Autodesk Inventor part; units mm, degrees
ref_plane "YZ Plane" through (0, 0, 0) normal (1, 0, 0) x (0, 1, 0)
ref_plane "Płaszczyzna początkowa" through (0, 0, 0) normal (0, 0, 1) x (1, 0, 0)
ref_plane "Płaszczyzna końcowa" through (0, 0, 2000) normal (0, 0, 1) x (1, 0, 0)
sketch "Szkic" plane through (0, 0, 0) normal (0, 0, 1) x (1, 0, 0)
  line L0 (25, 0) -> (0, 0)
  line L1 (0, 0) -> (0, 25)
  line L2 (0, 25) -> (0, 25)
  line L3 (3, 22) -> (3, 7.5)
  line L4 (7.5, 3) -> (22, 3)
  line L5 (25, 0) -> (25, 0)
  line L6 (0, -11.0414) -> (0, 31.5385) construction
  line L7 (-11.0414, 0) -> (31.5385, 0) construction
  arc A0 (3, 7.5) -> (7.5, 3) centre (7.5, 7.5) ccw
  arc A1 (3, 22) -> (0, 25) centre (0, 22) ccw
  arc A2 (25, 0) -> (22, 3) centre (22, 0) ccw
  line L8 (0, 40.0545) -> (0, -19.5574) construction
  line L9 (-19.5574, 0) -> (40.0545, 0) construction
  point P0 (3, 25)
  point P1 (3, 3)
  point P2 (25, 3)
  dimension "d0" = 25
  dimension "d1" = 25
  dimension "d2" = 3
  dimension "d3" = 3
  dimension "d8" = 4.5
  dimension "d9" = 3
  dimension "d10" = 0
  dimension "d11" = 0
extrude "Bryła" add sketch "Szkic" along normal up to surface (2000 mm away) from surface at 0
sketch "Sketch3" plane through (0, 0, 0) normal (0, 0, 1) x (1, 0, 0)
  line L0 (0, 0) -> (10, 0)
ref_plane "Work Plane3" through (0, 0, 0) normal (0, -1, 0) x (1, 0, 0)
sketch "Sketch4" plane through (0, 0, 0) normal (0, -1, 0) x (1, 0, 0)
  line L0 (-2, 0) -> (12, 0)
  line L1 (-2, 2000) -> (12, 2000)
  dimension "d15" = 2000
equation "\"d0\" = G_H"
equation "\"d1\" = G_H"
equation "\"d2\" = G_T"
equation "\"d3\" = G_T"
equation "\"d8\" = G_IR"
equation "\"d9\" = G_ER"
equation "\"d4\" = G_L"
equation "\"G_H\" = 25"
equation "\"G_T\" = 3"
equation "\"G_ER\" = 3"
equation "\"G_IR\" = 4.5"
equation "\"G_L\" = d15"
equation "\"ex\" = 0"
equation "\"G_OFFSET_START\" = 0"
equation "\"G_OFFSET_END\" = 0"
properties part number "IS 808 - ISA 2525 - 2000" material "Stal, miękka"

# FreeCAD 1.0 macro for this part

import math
import FreeCAD as App
import Part
import Sketcher

V = App.Vector

doc = App.newDocument("Part")
params = doc.addObject("Spreadsheet::Sheet", "Params")
for row, (alias, value) in enumerate([
    ("sketch1_radius", "3 mm"),
    ("sketch1_radius2", "4.5 mm"),
    ("sketch1_width", "25 mm"),
    ("pad1_length", "2000 mm"),
], start=1):
    params.set(f"A{row}", alias)
    params.set(f"B{row}", "=" + value)
    params.setAlias(f"B{row}", alias)

body = doc.addObject("PartDesign::Body", "Body")

sketch1 = body.newObject("Sketcher::SketchObject", "Sketch")
sketch1.AttachmentSupport = (doc.getObject("XY_Plane"), [""])
sketch1.MapMode = "FlatFace"
sketch1.addGeometry(Part.LineSegment(V(0, 0, 0), V(25, 0, 0)), False)
sketch1.addGeometry(Part.ArcOfCircle(Part.Circle(V(22, 0, 0), V(0, 0, 1), 3), math.radians(0), math.radians(90)), False)
sketch1.addGeometry(Part.LineSegment(V(22, 3, 0), V(7.5, 3, 0)), False)
sketch1.addGeometry(Part.ArcOfCircle(Part.Circle(V(7.5, 7.5, 0), V(0, 0, 1), 4.5), math.radians(180), math.radians(270)), False)
sketch1.addGeometry(Part.LineSegment(V(3, 7.5, 0), V(3, 22, 0)), False)
sketch1.addGeometry(Part.ArcOfCircle(Part.Circle(V(0, 22, 0), V(0, 0, 1), 3), math.radians(0), math.radians(90)), False)
sketch1.addGeometry(Part.LineSegment(V(0, 25, 0), V(0, 0, 0)), False)
sketch1.addConstraint(Sketcher.Constraint("Coincident", 0, 2, 1, 1))
sketch1.addConstraint(Sketcher.Constraint("Tangent", 1, 2, 2, 1))
sketch1.addConstraint(Sketcher.Constraint("Tangent", 2, 2, 3, 2))
sketch1.addConstraint(Sketcher.Constraint("Tangent", 3, 1, 4, 1))
sketch1.addConstraint(Sketcher.Constraint("Tangent", 4, 2, 5, 1))
sketch1.addConstraint(Sketcher.Constraint("Coincident", 5, 2, 6, 1))
sketch1.addConstraint(Sketcher.Constraint("Coincident", 6, 2, 0, 1))
sketch1.addConstraint(Sketcher.Constraint("Horizontal", 0))
sketch1.addConstraint(Sketcher.Constraint("Horizontal", 2))
sketch1.addConstraint(Sketcher.Constraint("Vertical", 4))
sketch1.addConstraint(Sketcher.Constraint("Vertical", 6))
sketch1.addConstraint(Sketcher.Constraint("Coincident", 6, 2, -1, 1))
sketch1.addConstraint(Sketcher.Constraint("Equal", 1, 5))
sketch1.addConstraint(Sketcher.Constraint("PointOnObject", 1, 3, -1))
sketch1.addConstraint(Sketcher.Constraint("PointOnObject", 5, 3, -2))
sketch1.addConstraint(Sketcher.Constraint("Equal", 2, 4))
sketch1.addConstraint(Sketcher.Constraint("Radius", 1, 3.0))
sketch1.addConstraint(Sketcher.Constraint("Radius", 3, 4.5))
sketch1.addConstraint(Sketcher.Constraint("DistanceX", 0, 1, 0, 2, 25.0))
sketch1.setExpression("Constraints[16]", "Params.sketch1_radius")
sketch1.setExpression("Constraints[17]", "Params.sketch1_radius2")
sketch1.setExpression("Constraints[18]", "Params.sketch1_width")
pad1 = body.newObject("PartDesign::Pad", "Pad")
pad1.Profile = sketch1
pad1.setExpression("Length", "Params.pad1_length")

doc.recompute()
